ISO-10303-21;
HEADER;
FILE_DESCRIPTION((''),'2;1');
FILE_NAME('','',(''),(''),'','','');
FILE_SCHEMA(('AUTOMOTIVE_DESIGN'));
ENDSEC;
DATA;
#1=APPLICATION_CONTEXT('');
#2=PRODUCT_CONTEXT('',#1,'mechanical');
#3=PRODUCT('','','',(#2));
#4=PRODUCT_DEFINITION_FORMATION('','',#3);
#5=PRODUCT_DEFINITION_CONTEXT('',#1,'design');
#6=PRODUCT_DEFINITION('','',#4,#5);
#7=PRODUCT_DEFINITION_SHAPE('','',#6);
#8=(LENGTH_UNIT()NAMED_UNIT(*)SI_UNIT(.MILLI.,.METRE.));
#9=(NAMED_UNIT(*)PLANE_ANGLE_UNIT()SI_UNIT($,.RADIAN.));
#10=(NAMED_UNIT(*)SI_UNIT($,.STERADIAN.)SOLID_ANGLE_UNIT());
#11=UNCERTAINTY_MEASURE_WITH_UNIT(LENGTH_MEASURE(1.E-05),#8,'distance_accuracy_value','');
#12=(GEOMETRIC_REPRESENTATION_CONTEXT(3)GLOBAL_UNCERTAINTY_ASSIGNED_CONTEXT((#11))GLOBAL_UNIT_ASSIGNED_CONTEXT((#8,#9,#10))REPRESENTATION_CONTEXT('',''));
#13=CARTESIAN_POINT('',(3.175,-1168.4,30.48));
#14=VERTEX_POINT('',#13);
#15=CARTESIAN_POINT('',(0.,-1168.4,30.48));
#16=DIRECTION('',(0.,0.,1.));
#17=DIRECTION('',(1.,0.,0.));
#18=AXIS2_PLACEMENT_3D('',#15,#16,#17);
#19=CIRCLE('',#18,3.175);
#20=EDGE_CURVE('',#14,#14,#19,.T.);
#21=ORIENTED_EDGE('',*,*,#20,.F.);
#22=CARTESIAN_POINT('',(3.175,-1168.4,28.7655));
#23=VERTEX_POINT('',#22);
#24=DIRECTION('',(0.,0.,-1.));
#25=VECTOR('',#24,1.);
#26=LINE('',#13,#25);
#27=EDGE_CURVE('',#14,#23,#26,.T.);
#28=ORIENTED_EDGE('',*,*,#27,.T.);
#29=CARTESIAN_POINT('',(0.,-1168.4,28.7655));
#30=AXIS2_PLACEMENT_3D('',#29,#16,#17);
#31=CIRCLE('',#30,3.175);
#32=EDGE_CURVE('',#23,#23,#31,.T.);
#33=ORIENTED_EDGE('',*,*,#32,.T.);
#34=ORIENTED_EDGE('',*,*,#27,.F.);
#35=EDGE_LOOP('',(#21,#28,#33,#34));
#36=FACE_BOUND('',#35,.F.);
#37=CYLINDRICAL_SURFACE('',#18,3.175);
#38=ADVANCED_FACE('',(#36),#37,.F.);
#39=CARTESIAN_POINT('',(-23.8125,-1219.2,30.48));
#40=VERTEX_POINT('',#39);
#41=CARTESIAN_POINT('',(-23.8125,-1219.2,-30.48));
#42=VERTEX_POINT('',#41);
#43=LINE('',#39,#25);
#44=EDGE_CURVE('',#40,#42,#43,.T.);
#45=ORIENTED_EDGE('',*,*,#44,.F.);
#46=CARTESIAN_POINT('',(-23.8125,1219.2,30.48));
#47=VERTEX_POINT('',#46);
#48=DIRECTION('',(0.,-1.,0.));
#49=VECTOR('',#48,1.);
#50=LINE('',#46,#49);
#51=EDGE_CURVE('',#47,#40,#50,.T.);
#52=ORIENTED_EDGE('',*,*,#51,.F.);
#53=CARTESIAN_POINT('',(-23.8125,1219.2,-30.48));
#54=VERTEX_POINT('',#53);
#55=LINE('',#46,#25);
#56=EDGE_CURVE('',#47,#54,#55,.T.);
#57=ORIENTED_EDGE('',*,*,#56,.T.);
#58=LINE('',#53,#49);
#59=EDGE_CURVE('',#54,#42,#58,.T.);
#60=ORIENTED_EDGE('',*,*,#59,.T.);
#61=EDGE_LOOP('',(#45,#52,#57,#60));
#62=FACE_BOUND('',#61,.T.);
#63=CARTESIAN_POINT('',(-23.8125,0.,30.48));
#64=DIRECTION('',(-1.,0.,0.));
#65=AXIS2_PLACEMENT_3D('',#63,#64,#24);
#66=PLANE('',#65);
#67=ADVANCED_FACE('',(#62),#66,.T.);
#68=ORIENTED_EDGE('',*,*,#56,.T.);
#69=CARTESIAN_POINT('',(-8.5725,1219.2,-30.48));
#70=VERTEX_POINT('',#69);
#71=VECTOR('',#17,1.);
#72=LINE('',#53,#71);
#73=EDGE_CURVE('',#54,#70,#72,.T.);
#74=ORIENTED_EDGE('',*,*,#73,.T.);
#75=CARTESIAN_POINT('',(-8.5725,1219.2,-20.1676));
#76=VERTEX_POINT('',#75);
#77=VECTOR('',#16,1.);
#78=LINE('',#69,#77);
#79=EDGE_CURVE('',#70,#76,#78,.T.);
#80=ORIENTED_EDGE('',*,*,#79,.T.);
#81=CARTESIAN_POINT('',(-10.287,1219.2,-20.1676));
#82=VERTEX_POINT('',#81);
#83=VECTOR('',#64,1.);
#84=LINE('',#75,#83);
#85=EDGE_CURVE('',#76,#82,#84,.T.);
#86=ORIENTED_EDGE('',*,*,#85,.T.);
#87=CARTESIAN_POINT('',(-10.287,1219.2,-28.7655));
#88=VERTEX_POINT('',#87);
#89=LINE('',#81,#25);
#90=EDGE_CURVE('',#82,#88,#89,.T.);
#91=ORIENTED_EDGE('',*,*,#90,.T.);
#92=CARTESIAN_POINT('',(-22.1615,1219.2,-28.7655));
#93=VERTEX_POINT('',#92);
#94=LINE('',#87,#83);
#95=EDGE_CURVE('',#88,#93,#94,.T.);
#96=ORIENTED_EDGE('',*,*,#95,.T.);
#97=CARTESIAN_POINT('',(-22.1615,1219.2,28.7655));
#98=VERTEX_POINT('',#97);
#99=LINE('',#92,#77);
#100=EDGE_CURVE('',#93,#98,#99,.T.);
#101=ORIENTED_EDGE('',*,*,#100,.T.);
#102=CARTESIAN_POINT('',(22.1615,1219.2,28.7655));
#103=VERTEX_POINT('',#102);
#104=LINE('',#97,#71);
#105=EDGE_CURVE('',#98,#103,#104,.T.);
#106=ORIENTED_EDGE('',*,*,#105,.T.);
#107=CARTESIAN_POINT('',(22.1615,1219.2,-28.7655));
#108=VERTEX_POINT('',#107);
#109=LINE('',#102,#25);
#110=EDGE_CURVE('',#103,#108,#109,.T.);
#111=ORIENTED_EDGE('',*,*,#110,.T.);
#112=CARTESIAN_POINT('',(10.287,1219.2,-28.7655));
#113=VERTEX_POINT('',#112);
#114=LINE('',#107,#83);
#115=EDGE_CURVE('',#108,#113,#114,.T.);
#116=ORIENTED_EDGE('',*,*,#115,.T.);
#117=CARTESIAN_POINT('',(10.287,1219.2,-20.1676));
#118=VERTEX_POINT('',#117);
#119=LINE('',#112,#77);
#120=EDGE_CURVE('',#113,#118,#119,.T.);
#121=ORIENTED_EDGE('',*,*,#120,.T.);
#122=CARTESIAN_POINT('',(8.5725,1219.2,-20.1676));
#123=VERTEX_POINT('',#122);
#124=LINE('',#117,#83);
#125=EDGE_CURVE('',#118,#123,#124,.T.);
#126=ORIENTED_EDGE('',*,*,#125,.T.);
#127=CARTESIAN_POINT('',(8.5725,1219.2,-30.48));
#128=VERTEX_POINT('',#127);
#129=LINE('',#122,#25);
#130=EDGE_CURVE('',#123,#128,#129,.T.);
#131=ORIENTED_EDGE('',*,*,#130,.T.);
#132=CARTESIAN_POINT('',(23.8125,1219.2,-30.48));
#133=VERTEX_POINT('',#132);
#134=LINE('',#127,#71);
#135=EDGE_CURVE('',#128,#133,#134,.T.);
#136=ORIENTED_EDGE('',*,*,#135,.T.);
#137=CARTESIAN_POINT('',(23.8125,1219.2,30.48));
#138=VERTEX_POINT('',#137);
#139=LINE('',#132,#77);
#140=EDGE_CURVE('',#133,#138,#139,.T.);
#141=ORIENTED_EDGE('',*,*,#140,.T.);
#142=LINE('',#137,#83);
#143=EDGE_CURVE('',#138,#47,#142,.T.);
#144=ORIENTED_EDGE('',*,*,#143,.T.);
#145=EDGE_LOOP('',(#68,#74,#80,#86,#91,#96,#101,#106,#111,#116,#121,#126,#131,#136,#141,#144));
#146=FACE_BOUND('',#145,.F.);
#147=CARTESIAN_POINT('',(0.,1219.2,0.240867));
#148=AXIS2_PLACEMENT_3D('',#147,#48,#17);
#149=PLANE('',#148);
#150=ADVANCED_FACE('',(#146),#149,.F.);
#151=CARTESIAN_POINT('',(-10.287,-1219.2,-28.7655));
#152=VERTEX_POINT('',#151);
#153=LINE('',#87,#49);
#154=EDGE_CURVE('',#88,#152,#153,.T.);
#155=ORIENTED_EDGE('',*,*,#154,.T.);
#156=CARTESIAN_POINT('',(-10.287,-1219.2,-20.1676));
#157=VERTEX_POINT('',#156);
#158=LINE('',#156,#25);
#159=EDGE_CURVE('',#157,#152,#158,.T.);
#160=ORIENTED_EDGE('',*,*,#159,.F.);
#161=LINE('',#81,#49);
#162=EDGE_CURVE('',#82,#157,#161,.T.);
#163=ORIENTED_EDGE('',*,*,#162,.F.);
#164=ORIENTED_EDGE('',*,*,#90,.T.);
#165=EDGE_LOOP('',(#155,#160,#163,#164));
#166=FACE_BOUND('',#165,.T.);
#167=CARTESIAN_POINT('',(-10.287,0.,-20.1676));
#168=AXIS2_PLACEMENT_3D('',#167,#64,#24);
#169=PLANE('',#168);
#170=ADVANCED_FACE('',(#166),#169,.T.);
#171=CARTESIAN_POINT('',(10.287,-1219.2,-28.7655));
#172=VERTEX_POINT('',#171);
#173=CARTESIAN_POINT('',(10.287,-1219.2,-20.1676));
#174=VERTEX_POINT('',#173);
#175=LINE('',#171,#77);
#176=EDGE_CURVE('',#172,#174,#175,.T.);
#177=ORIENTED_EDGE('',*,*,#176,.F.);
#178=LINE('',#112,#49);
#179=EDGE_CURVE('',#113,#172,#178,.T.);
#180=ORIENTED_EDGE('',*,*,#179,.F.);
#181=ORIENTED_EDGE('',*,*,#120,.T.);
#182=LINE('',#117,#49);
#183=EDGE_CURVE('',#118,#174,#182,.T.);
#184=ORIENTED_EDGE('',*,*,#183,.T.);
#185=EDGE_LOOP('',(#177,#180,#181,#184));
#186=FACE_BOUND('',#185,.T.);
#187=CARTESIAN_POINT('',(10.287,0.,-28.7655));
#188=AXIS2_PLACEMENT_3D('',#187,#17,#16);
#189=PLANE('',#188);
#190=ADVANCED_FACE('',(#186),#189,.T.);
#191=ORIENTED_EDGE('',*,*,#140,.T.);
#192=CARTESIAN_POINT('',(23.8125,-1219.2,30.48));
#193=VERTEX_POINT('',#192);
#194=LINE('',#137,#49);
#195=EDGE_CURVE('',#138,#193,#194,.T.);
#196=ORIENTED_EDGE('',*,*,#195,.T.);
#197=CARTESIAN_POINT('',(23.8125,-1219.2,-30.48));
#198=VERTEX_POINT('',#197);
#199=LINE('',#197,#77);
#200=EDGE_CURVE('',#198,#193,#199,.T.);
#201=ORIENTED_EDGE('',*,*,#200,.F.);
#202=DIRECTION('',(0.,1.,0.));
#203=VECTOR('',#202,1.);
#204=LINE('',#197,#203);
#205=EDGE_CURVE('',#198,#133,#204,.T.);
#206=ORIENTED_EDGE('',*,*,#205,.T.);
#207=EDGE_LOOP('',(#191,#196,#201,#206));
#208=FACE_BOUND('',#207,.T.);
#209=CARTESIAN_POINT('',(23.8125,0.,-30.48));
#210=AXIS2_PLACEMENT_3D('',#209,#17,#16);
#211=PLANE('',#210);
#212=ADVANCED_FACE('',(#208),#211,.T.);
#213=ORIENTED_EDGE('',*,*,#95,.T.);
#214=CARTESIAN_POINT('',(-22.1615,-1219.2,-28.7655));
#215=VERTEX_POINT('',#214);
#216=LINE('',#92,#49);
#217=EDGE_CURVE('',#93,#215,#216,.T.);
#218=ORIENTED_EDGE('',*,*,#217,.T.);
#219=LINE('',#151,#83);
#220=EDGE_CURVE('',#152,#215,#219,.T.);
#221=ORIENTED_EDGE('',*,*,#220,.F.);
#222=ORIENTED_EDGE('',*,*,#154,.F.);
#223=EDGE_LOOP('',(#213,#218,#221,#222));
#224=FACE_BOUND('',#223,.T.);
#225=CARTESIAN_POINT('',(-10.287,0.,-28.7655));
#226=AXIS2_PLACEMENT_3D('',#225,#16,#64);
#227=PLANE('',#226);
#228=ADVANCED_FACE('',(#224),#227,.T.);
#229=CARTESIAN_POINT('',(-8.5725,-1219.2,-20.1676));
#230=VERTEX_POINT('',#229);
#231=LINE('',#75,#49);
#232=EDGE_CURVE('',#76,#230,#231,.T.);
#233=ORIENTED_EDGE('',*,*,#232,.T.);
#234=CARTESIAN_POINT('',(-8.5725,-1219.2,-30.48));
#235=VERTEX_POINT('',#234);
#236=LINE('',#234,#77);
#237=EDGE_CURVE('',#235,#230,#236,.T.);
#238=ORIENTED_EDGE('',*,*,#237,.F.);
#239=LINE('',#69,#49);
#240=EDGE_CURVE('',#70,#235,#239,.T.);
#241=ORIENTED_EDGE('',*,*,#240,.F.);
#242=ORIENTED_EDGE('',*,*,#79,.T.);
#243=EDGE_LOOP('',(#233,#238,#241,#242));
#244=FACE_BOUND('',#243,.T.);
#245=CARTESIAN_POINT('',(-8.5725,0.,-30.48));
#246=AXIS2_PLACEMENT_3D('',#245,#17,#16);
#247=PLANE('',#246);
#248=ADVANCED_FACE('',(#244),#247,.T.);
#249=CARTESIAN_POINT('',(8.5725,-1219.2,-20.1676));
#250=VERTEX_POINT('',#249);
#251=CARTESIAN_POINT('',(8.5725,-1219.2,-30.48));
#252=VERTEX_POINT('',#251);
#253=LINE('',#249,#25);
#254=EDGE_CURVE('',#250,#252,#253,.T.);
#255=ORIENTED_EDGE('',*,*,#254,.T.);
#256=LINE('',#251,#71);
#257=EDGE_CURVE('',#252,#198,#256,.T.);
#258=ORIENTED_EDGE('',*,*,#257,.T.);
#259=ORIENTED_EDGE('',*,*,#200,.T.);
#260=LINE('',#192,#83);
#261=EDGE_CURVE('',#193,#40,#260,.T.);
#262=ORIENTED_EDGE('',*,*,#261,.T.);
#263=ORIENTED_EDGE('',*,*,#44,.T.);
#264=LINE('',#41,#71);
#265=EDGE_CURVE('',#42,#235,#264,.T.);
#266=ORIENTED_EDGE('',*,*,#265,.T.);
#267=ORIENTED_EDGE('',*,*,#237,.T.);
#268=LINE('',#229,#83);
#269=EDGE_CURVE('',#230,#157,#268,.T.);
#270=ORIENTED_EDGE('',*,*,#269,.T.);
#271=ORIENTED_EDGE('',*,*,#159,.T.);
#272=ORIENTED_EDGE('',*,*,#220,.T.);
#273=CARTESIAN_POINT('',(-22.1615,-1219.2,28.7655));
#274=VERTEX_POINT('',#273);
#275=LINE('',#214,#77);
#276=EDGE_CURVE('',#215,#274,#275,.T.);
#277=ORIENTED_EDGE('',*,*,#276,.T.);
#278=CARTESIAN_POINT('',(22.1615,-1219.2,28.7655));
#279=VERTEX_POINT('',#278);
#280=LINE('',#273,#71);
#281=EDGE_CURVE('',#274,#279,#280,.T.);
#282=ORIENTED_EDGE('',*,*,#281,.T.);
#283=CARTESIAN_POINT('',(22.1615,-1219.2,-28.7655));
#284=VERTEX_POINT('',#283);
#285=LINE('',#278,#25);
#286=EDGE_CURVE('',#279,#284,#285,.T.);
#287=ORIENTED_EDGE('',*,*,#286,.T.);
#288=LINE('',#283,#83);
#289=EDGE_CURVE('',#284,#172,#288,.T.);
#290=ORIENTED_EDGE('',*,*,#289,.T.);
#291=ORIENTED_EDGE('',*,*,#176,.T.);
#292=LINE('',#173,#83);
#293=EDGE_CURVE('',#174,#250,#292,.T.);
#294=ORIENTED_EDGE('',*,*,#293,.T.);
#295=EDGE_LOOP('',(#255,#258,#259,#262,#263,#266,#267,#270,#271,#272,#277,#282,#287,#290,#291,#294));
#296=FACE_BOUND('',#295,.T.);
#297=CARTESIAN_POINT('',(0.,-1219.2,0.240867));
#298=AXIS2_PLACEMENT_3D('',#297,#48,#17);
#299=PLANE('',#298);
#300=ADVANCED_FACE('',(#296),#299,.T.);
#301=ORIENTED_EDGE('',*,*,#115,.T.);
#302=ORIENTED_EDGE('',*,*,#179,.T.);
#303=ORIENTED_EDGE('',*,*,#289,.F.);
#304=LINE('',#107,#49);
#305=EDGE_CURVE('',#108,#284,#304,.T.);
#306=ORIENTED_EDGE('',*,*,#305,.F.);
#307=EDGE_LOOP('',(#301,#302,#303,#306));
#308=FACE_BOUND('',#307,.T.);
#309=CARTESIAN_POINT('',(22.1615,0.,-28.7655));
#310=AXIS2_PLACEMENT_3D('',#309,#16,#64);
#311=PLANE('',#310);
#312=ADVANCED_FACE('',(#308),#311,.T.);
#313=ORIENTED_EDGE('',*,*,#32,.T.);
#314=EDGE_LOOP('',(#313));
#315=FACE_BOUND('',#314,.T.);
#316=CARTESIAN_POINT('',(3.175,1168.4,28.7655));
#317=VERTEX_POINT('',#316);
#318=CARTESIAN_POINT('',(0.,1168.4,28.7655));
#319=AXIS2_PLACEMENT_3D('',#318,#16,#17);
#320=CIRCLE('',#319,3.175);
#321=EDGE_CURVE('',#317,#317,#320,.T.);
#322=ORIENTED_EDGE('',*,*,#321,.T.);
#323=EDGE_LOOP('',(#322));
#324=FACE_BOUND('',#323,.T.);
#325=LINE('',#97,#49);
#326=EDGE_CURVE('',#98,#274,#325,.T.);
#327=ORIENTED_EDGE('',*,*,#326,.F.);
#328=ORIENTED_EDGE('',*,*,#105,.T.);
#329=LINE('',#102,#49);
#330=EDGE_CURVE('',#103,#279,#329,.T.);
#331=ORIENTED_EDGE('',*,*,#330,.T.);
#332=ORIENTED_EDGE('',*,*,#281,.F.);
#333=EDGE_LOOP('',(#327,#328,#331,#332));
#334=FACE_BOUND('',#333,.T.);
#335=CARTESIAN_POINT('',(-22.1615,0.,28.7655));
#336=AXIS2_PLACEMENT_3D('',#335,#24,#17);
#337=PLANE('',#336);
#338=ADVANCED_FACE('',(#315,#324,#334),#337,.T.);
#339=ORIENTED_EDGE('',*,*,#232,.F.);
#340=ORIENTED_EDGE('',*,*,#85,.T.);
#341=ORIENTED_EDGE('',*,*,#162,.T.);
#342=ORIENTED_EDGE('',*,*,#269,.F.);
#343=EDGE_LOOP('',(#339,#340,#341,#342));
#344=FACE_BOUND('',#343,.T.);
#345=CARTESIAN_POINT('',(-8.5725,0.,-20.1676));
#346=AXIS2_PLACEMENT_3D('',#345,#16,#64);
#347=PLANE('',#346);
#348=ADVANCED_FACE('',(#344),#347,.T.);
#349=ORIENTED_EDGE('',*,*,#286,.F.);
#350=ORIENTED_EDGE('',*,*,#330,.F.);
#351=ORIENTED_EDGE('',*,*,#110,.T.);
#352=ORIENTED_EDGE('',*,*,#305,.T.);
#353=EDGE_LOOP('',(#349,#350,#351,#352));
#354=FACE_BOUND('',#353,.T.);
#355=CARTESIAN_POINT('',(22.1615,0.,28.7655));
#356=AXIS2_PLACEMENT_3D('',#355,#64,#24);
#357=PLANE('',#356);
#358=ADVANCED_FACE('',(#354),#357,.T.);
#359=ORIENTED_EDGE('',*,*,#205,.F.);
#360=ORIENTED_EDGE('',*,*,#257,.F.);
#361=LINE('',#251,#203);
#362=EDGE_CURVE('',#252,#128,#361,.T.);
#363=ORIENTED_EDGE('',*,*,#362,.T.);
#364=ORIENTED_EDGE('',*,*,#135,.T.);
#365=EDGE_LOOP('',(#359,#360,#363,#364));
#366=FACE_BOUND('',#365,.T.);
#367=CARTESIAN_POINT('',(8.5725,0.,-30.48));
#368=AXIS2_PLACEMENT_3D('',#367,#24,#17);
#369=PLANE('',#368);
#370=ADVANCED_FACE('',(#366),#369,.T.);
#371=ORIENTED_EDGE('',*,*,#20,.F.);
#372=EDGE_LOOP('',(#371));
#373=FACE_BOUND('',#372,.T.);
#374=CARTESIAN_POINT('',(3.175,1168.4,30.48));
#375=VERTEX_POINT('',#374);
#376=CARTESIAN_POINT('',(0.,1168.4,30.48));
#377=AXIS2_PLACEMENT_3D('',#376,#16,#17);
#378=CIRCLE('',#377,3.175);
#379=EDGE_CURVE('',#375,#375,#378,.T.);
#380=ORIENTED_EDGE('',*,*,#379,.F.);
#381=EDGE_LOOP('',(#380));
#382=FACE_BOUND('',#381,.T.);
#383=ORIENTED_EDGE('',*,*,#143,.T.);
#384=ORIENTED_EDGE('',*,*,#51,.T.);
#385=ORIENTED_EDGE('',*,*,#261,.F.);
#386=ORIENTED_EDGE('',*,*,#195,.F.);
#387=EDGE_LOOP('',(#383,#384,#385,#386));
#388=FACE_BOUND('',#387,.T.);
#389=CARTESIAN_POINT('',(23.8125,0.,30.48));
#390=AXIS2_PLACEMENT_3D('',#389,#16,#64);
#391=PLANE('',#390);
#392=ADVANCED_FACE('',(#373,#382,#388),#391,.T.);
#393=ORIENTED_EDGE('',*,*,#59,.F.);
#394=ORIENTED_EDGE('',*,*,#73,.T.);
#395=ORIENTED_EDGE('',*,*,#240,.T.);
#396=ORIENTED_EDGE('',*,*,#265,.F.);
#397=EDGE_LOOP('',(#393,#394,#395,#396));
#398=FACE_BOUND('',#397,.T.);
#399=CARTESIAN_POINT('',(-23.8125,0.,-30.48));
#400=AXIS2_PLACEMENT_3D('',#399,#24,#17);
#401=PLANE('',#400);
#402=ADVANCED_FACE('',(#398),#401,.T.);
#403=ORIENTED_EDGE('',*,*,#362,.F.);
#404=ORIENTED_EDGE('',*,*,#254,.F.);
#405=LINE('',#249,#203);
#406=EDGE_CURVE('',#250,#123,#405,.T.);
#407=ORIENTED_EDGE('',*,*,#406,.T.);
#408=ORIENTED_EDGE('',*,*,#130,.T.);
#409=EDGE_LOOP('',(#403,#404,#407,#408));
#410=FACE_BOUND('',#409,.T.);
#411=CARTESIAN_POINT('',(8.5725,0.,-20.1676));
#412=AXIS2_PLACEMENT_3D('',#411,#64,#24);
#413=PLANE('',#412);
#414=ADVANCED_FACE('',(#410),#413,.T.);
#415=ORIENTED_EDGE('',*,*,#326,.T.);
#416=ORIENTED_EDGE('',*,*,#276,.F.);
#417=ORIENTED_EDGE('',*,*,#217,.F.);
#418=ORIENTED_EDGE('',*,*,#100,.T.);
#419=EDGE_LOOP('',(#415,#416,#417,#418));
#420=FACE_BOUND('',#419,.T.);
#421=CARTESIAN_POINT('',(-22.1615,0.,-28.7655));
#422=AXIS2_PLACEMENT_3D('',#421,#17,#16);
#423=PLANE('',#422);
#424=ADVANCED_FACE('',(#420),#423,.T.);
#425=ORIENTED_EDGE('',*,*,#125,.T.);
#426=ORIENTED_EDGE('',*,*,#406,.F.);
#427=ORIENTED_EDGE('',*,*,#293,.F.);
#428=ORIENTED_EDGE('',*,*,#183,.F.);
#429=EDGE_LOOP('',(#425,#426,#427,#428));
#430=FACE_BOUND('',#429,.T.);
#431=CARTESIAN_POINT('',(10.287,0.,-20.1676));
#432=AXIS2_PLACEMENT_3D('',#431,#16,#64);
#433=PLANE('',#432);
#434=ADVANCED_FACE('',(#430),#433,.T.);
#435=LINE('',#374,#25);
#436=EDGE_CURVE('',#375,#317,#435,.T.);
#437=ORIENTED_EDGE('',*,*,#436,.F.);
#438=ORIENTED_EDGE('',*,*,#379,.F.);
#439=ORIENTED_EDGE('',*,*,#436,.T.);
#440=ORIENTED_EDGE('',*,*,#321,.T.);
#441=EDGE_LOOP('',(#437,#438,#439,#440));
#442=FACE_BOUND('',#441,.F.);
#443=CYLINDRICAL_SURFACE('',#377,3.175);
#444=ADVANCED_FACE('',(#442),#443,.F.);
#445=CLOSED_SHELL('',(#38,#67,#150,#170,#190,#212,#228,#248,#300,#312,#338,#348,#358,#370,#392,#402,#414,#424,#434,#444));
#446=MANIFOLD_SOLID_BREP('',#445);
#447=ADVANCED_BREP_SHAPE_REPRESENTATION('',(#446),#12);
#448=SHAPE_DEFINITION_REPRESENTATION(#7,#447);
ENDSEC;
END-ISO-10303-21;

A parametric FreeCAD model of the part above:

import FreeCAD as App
import Part
import Sketcher

V = App.Vector
Q = App.Units.Quantity


def add_polygon(sketch, points):
    """Adds a closed chain of lines whose ends are joined by coincident constraints."""
    first, n = sketch.GeometryCount, len(points)
    for a, b in zip(points, points[1:] + points[:1]):
        sketch.addGeometry(Part.LineSegment(App.Vector(*a, 0), App.Vector(*b, 0)), False)
    for i in range(n):
        sketch.addConstraint(Sketcher.Constraint("Coincident", first + i, 2, first + (i + 1) % n, 1))

doc = App.newDocument("Part")
body = doc.addObject("PartDesign::Body", "Body")

# Sketch on XZ plane
sketch1 = body.newObject("Sketcher::SketchObject", "Sketch")
sketch1.AttachmentSupport = (doc.getObject("XZ_Plane"), [""])
sketch1.MapMode = "FlatFace"
add_polygon(sketch1, [(23.8125, -30.48), (23.8125, 30.48), (-23.8125, 30.48), (-23.8125, -30.48), (-8.5725, -30.48), (-8.5725, -20.1676), (-10.287, -20.1676), (-10.287, -28.7655), (-22.1615, -28.7655), (-22.1615, 28.7655), (22.1615, 28.7655), (22.1615, -28.7655), (10.287, -28.7655), (10.287, -20.1676), (8.5725, -20.1676), (8.5725, -30.48)])  # lines 0-15
sketch1.addConstraint([
    Sketcher.Constraint("Vertical", 0),
    Sketcher.Constraint("Horizontal", 1),
    Sketcher.Constraint("Vertical", 2),
    Sketcher.Constraint("Horizontal", 3),
    Sketcher.Constraint("Vertical", 4),
    Sketcher.Constraint("Horizontal", 5),
    Sketcher.Constraint("Vertical", 6),
    Sketcher.Constraint("Horizontal", 7),
    Sketcher.Constraint("Vertical", 8),
    Sketcher.Constraint("Horizontal", 9),
    Sketcher.Constraint("Vertical", 10),
    Sketcher.Constraint("Horizontal", 11),
    Sketcher.Constraint("Vertical", 12),
    Sketcher.Constraint("Horizontal", 13),
    Sketcher.Constraint("Vertical", 14),
    Sketcher.Constraint("Horizontal", 15),
    Sketcher.Constraint("Symmetric", 0, 2, 2, 2, -1, 1),
    Sketcher.Constraint("Symmetric", 7, 2, 9, 2, -1, 1),
    Sketcher.Constraint("Symmetric", 6, 2, 11, 2, -2),
    Sketcher.Constraint("Symmetric", 4, 2, 13, 2, -2),
    Sketcher.Constraint("Horizontal", 3, 2, 14, 2),
    Sketcher.Constraint("DistanceX", 3, 1, 3, 2, Q("0.6 in")),
    Sketcher.Constraint("DistanceY", 0, 1, 0, 2, Q("2.4 in")),
    Sketcher.Constraint("DistanceX", 1, 2, 1, 1, Q("1.875 in")),
    Sketcher.Constraint("DistanceX", 9, 1, 9, 2, Q("1.745 in")),
    Sketcher.Constraint("DistanceY", 4, 1, 4, 2, Q("0.406 in")),
    Sketcher.Constraint("DistanceY", 8, 1, 8, 2, Q("2.265 in")),
    Sketcher.Constraint("DistanceX", 6, 2, 11, 2, Q("0.81 in")),
])
pad1 = body.newObject("PartDesign::Pad", "Pad")
pad1.Profile = sketch1
pad1.Length = Q("96 in")
pad1.Midplane = True

# Sketch on XY plane
sketch2 = body.newObject("Sketcher::SketchObject", "Sketch001")
sketch2.AttachmentSupport = (doc.getObject("XY_Plane"), [""])
sketch2.MapMode = "FlatFace"
sketch2.AttachmentOffset = App.Placement(V(0, 0, 1.2 * 25.4), App.Rotation())
sketch2.addGeometry([
    Part.Circle(V(0, 1168.4, 0), V(0, 0, 1), 3.175),
    Part.Circle(V(0, -1168.4, 0), V(0, 0, 1), 3.175),
], False)
sketch2.addConstraint([
    Sketcher.Constraint("Equal", 0, 1),
    Sketcher.Constraint("Symmetric", 0, 3, 1, 3, -1, 1),
    Sketcher.Constraint("PointOnObject", 0, 3, -2),
    Sketcher.Constraint("Diameter", 0, Q("0.25 in")),
    Sketcher.Constraint("DistanceY", -1, 1, 0, 3, Q("46 in")),
])
pocket1 = body.newObject("PartDesign::Pocket", "Pocket")
pocket1.Profile = sketch2
pocket1.Type = "ThroughAll"

doc.recompute()
